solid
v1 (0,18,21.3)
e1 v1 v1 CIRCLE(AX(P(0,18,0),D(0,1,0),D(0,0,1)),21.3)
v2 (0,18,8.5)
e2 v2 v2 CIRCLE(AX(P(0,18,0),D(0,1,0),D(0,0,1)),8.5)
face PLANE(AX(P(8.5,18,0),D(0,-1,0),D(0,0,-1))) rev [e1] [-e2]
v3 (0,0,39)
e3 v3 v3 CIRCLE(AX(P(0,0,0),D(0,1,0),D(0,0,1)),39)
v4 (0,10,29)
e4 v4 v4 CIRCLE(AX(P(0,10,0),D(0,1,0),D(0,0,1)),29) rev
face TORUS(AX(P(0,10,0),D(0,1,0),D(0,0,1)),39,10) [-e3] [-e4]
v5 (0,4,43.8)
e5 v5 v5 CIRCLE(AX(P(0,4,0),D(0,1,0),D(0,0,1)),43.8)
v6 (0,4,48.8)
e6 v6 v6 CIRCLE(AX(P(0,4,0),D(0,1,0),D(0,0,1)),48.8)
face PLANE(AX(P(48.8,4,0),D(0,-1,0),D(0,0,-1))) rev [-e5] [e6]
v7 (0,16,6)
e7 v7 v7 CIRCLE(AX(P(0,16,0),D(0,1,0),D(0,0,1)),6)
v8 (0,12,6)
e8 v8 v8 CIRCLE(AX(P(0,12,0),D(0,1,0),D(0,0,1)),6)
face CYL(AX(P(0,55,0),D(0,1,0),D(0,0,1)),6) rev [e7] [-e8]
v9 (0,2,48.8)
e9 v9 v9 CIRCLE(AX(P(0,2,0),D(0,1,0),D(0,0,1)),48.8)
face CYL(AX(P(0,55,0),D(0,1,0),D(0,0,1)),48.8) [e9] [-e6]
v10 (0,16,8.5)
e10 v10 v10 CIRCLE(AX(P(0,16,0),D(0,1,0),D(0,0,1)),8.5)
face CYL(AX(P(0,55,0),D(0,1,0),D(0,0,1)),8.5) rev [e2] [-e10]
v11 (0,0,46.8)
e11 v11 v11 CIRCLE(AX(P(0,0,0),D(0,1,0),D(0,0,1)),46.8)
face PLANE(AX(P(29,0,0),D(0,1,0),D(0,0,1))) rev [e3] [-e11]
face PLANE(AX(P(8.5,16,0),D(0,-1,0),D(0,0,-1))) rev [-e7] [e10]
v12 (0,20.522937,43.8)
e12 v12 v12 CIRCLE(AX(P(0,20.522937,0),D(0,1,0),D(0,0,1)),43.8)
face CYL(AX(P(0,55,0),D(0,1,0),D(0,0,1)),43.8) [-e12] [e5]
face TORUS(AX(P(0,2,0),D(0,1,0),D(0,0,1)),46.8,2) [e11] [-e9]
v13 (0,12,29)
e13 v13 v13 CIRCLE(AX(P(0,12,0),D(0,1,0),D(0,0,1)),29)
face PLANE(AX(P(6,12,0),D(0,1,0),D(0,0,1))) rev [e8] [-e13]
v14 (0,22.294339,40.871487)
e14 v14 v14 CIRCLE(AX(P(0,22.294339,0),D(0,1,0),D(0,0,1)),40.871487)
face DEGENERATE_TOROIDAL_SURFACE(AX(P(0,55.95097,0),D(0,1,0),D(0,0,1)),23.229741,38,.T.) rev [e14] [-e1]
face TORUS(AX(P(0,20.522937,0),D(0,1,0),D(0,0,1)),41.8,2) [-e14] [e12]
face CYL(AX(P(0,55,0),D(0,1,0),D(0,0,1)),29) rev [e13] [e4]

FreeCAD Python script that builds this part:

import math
import FreeCAD as App
import Part
import Sketcher


def edges_at(feature, points):
    """Names of the edges that pass closest to the given points."""
    edges = feature.Shape.Edges
    near = lambda p: min(range(len(edges)), key=lambda i: edges[i].distToShape(Part.Vertex(*p))[0])
    return sorted({f"Edge{near(p) + 1}" for p in points})

doc = App.newDocument("Part")
body = doc.addObject("PartDesign::Body", "Body")

sketch1 = body.newObject("Sketcher::SketchObject", "Sketch")
sketch1.AttachmentSupport = (doc.getObject("XY_Plane"), [""])
sketch1.MapMode = "FlatFace"
sketch1.addGeometry(Part.LineSegment(App.Vector(29, 0, 0), App.Vector(46.8, 0, 0)), False)
sketch1.addGeometry(Part.ArcOfCircle(Part.Circle(App.Vector(46.8, 2, 0), App.Vector(0, 0, 1), 2), math.radians(-90), math.radians(0)), False)
sketch1.addGeometry(Part.LineSegment(App.Vector(48.8, 2, 0), App.Vector(48.8, 4, 0)), False)
sketch1.addGeometry(Part.LineSegment(App.Vector(48.8, 4, 0), App.Vector(43.8, 4, 0)), False)
sketch1.addGeometry(Part.LineSegment(App.Vector(43.8, 4, 0), App.Vector(43.8, 20.5, 0)), False)
sketch1.addGeometry(Part.ArcOfCircle(Part.Circle(App.Vector(41.8, 20.5, 0), App.Vector(0, 0, 1), 2), math.radians(0), math.radians(118)), False)
sketch1.addGeometry(Part.ArcOfCircle(Part.Circle(App.Vector(23.2, 56, 0), App.Vector(0, 0, 1), 38), math.radians(-93), math.radians(-62)), False)
sketch1.addGeometry(Part.LineSegment(App.Vector(21.3, 18, 0), App.Vector(8.5, 18, 0)), False)
sketch1.addGeometry(Part.LineSegment(App.Vector(8.5, 18, 0), App.Vector(8.5, 16, 0)), False)
sketch1.addGeometry(Part.LineSegment(App.Vector(8.5, 16, 0), App.Vector(6, 16, 0)), False)
sketch1.addGeometry(Part.LineSegment(App.Vector(6, 16, 0), App.Vector(6, 12, 0)), False)
sketch1.addGeometry(Part.LineSegment(App.Vector(6, 12, 0), App.Vector(29, 12, 0)), False)
sketch1.addGeometry(Part.LineSegment(App.Vector(29, 12, 0), App.Vector(29, 0, 0)), False)
sketch1.addConstraint(Sketcher.Constraint("Tangent", 0, 2, 1, 1))
sketch1.addConstraint(Sketcher.Constraint("Tangent", 1, 2, 2, 1))
sketch1.addConstraint(Sketcher.Constraint("Coincident", 2, 2, 3, 1))
sketch1.addConstraint(Sketcher.Constraint("Coincident", 3, 2, 4, 1))
sketch1.addConstraint(Sketcher.Constraint("Tangent", 4, 2, 5, 1))
sketch1.addConstraint(Sketcher.Constraint("Tangent", 5, 2, 6, 2))
sketch1.addConstraint(Sketcher.Constraint("Coincident", 6, 1, 7, 1))
sketch1.addConstraint(Sketcher.Constraint("Coincident", 7, 2, 8, 1))
sketch1.addConstraint(Sketcher.Constraint("Coincident", 8, 2, 9, 1))
sketch1.addConstraint(Sketcher.Constraint("Coincident", 9, 2, 10, 1))
sketch1.addConstraint(Sketcher.Constraint("Coincident", 10, 2, 11, 1))
sketch1.addConstraint(Sketcher.Constraint("Coincident", 11, 2, 12, 1))
sketch1.addConstraint(Sketcher.Constraint("Coincident", 12, 2, 0, 1))
sketch1.addConstraint(Sketcher.Constraint("Horizontal", 0))
sketch1.addConstraint(Sketcher.Constraint("Vertical", 2))
sketch1.addConstraint(Sketcher.Constraint("Horizontal", 3))
sketch1.addConstraint(Sketcher.Constraint("Vertical", 4))
sketch1.addConstraint(Sketcher.Constraint("Horizontal", 7))
sketch1.addConstraint(Sketcher.Constraint("Vertical", 8))
sketch1.addConstraint(Sketcher.Constraint("Horizontal", 9))
sketch1.addConstraint(Sketcher.Constraint("Vertical", 10))
sketch1.addConstraint(Sketcher.Constraint("Horizontal", 11))
sketch1.addConstraint(Sketcher.Constraint("Vertical", 12))
sketch1.addConstraint(Sketcher.Constraint("Equal", 1, 5))
sketch1.addConstraint(Sketcher.Constraint("PointOnObject", 0, 2, -1))
sketch1.addConstraint(Sketcher.Constraint("Equal", 2, 8))
sketch1.addConstraint(Sketcher.Constraint("Radius", 1, 2.0))
sketch1.addConstraint(Sketcher.Constraint("Radius", 6, 38.0))
sketch1.addConstraint(Sketcher.Constraint("DistanceX", 3, 2, 3, 1, 5.0))
sketch1.addConstraint(Sketcher.Constraint("DistanceX", 11, 1, 11, 2, 23.0))
sketch1.addConstraint(Sketcher.Constraint("DistanceY", 2, 1, 2, 2, 2.0))
sketch1.addConstraint(Sketcher.Constraint("DistanceY", 10, 2, 10, 1, 4.0))
sketch1.addConstraint(Sketcher.Constraint("DistanceY", 12, 2, 12, 1, 12.0))
sketch1.addConstraint(Sketcher.Constraint("DistanceX", 0, 1, 0, 2, 17.8))
sketch1.addConstraint(Sketcher.Constraint("DistanceX", 7, 2, 7, 1, 12.8))
sketch1.addConstraint(Sketcher.Constraint("DistanceX", 9, 2, 9, 1, 2.5))
sketch1.addConstraint(Sketcher.Constraint("DistanceX", -1, 1, 9, 2, 6.0))
sketch1.addConstraint(Sketcher.Constraint("DistanceY", 5, 3, 5, 2, 1.771402))
revolution = body.newObject("PartDesign::Revolution", "Revolution")
revolution.Profile = sketch1
revolution.ReferenceAxis = (sketch1, ["V_Axis"])
revolution.Angle = 360
doc.recompute()

fillet = body.newObject("PartDesign::Fillet", "Fillet")
fillet.Base = (revolution, edges_at(revolution, [(-29, 0, 0)]))
fillet.Radius = 10

doc.recompute()
